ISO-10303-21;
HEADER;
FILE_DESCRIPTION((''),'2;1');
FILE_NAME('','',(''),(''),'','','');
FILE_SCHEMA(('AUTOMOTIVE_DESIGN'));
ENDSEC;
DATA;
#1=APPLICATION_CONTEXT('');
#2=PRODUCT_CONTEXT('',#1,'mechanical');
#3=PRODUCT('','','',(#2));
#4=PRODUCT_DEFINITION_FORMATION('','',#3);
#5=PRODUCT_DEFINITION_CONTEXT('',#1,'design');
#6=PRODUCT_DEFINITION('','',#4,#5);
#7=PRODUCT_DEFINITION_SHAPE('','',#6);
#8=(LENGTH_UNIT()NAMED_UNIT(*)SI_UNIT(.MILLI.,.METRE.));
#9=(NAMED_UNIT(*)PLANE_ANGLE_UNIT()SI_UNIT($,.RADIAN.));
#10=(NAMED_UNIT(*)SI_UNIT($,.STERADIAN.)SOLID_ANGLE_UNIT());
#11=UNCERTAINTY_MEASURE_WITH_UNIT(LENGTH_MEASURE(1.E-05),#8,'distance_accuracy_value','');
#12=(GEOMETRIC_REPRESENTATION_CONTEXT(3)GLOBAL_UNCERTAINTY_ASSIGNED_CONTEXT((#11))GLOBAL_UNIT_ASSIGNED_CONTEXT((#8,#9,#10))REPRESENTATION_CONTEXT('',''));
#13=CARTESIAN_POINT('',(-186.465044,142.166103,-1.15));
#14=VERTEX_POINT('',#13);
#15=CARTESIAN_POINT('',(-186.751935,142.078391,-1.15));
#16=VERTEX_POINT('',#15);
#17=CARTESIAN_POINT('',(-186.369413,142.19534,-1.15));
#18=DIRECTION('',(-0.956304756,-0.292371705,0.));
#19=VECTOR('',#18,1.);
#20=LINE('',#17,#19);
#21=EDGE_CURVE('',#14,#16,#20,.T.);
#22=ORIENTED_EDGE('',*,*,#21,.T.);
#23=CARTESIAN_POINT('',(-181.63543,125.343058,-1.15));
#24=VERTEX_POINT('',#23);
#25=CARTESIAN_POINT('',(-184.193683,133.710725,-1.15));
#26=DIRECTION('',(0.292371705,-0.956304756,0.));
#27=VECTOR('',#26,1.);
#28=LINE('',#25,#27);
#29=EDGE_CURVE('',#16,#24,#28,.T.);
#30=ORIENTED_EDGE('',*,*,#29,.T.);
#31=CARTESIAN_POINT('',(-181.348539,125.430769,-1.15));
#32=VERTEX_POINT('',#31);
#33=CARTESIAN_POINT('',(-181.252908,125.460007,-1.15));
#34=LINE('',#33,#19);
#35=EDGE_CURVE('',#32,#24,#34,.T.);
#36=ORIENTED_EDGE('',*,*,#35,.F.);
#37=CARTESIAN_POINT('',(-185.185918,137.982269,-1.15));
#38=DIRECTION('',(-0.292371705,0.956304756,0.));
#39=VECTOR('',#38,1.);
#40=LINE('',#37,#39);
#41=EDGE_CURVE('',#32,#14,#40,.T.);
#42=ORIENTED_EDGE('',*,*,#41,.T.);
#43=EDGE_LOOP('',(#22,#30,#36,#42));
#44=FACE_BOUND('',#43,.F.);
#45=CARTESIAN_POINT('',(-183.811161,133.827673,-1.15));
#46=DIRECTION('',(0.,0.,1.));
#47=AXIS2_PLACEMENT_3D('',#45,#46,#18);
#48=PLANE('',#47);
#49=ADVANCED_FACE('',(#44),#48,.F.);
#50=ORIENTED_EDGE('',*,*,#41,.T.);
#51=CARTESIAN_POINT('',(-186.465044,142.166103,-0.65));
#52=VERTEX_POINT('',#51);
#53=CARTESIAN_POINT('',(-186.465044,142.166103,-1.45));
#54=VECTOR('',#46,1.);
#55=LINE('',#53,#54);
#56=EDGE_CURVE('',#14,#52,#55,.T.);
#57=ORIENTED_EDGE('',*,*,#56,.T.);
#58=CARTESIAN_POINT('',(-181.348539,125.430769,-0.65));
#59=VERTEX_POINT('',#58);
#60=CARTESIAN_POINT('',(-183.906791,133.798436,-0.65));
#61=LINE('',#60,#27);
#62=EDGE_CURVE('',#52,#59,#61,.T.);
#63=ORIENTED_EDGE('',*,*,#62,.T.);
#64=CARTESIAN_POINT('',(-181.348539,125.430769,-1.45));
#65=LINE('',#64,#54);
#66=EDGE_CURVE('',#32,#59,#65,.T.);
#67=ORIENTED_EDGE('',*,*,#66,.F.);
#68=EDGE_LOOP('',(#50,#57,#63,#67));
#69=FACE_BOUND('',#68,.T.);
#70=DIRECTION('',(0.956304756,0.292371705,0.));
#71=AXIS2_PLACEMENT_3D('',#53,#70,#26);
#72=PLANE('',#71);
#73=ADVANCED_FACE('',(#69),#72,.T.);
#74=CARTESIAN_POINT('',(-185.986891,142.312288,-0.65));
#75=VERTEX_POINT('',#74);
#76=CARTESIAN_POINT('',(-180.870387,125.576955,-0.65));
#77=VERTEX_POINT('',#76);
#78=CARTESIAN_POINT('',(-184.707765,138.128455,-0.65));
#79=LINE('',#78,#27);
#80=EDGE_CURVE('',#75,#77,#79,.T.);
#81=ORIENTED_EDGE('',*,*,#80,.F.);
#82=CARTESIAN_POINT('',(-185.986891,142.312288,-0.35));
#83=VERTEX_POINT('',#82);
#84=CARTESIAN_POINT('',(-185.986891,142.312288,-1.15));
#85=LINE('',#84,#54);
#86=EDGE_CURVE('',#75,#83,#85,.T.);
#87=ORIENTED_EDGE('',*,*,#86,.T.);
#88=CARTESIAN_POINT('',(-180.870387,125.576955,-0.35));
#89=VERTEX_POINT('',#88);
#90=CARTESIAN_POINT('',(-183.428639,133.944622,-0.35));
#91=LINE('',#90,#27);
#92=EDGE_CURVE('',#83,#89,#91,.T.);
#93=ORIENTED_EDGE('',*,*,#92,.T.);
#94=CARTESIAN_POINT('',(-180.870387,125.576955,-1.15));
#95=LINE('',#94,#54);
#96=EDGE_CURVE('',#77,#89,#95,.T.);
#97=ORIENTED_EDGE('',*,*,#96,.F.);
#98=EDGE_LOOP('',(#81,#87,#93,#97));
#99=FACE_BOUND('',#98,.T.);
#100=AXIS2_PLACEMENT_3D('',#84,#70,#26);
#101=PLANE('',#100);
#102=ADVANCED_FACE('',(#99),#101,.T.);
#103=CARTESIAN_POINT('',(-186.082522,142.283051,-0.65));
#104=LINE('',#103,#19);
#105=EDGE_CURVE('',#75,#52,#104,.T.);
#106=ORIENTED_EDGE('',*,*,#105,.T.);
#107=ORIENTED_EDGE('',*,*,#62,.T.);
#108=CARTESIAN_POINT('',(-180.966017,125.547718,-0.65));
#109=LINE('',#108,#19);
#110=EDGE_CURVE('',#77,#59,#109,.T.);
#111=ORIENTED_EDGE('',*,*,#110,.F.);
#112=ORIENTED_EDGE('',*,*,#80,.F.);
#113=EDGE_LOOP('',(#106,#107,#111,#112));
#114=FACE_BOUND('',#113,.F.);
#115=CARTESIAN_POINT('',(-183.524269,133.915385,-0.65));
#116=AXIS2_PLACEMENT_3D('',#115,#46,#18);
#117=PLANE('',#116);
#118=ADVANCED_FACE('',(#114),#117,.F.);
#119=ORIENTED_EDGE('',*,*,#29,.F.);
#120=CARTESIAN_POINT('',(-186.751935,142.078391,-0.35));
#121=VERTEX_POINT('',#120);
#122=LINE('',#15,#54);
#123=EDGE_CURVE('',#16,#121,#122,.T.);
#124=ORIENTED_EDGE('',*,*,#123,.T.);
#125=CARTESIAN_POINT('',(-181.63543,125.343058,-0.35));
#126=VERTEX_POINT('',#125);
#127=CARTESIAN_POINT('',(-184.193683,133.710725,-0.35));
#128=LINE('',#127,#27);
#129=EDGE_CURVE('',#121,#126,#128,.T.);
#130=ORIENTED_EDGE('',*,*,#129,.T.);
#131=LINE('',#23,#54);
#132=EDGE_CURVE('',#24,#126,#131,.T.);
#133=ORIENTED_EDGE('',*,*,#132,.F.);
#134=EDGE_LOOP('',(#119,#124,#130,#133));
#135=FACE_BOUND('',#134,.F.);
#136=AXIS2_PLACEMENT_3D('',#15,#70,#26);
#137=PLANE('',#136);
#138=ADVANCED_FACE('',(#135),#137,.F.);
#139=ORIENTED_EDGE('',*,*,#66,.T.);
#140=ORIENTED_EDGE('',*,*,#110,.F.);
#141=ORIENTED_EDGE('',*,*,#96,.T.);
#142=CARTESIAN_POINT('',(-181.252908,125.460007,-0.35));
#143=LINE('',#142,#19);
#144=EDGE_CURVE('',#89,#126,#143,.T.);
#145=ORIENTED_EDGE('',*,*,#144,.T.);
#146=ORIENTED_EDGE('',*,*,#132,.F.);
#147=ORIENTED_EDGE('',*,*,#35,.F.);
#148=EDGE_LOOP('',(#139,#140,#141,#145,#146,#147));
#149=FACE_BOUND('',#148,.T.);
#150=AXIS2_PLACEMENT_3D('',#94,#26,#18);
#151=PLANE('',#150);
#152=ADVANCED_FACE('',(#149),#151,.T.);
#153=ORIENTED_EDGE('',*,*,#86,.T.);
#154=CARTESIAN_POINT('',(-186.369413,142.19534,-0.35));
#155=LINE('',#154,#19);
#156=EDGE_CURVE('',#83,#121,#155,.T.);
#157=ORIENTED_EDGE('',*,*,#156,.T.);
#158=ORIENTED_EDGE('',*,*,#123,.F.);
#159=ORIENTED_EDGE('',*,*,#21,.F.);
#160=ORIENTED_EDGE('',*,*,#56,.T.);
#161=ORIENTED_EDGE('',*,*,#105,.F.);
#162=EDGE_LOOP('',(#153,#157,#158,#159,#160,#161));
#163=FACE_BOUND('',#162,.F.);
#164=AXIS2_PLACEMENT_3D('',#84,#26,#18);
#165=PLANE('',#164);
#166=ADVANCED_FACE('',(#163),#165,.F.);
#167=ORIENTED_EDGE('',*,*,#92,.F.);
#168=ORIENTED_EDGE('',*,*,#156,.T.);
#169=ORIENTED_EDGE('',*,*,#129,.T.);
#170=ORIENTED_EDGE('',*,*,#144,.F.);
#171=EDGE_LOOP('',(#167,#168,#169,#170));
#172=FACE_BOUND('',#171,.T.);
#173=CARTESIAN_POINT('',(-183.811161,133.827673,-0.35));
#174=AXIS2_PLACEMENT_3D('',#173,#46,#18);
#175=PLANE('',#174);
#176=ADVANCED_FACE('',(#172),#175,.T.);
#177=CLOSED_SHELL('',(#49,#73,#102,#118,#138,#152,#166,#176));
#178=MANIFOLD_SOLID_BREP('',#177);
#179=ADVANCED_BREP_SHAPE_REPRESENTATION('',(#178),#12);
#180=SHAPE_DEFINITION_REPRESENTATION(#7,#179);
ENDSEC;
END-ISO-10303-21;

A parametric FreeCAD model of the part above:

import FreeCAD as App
import Part
import Sketcher
Q = App.Units.Quantity


def add_polygon(sketch, points):
    """Adds a closed chain of lines whose ends are joined by coincident constraints."""
    first, n = sketch.GeometryCount, len(points)
    for a, b in zip(points, points[1:] + points[:1]):
        sketch.addGeometry(Part.LineSegment(App.Vector(*a, 0), App.Vector(*b, 0)), False)
    for i in range(n):
        sketch.addConstraint(Sketcher.Constraint("Coincident", first + i, 2, first + (i + 1) % n, 1))

doc = App.newDocument("Part")
body = doc.addObject("PartDesign::Body", "Body")

# Sketch on XY plane
sketch1 = body.newObject("Sketcher::SketchObject", "Sketch")
sketch1.AttachmentSupport = (doc.getObject("XY_Plane"), [""])
sketch1.MapMode = "FlatFace"
add_polygon(sketch1, [(0, 17.5), (0, 0), (0.8, 0), (0.8, 17.5)])  # lines 0-3
sketch1.addConstraint(Sketcher.Constraint("Vertical", 0))
sketch1.addConstraint(Sketcher.Constraint("Horizontal", 1))
sketch1.addConstraint(Sketcher.Constraint("Vertical", 2))
sketch1.addConstraint(Sketcher.Constraint("Horizontal", 3))
sketch1.addConstraint(Sketcher.Constraint("Coincident", 0, 2, -1, 1))
sketch1.addConstraint(Sketcher.Constraint("DistanceX", 1, 1, 1, 2, Q("0.8 mm")))
sketch1.addConstraint(Sketcher.Constraint("DistanceY", 0, 2, 0, 1, Q("17.5 mm")))
pad1 = body.newObject("PartDesign::Pad", "Pad")
pad1.Profile = sketch1
pad1.Length = 0.8
body2 = doc.addObject("PartDesign::Body", "Body001")

# Sketch on XY plane
sketch2 = body2.newObject("Sketcher::SketchObject", "Sketch001")
sketch2.AttachmentSupport = (doc.getObject("XY_Plane001"), [""])
sketch2.MapMode = "FlatFace"
sketch2.AttachmentOffset = App.Placement(App.Vector(0, 0, 0.3), App.Rotation())
add_polygon(sketch2, [(0.3, 17.5), (0.3, 0), (1.1, 0), (1.1, 17.5)])  # lines 0-3
sketch2.addConstraint(Sketcher.Constraint("Vertical", 0))
sketch2.addConstraint(Sketcher.Constraint("Horizontal", 1))
sketch2.addConstraint(Sketcher.Constraint("Vertical", 2))
sketch2.addConstraint(Sketcher.Constraint("Horizontal", 3))
sketch2.addConstraint(Sketcher.Constraint("PointOnObject", 0, 2, -1))
sketch2.addConstraint(Sketcher.Constraint("DistanceX", 1, 1, 1, 2, Q("0.8 mm")))
sketch2.addConstraint(Sketcher.Constraint("DistanceY", 0, 2, 0, 1, Q("17.5 mm")))
sketch2.addConstraint(Sketcher.Constraint("DistanceX", -1, 1, 0, 2, Q("0.3 mm")))
pad2 = body2.newObject("PartDesign::Pad", "Pad001")
pad2.Profile = sketch2
pad2.Length = 0.8
doc.recompute()

boolean = body2.newObject("PartDesign::Boolean", "Boolean")
boolean.Type = "Cut"
boolean.addObjects([body])
body3 = doc.addObject("PartDesign::Body", "Body002")
doc.recompute()

body2.Placement = App.Placement(App.Vector(-185.7, 142.4, -1.45), App.Rotation(App.Vector(0, 0, 1), 197))
boolean2 = body3.newObject("PartDesign::Boolean", "Boolean001")
boolean2.Type = "Fuse"
boolean2.addObjects([body2])

doc.recompute()
